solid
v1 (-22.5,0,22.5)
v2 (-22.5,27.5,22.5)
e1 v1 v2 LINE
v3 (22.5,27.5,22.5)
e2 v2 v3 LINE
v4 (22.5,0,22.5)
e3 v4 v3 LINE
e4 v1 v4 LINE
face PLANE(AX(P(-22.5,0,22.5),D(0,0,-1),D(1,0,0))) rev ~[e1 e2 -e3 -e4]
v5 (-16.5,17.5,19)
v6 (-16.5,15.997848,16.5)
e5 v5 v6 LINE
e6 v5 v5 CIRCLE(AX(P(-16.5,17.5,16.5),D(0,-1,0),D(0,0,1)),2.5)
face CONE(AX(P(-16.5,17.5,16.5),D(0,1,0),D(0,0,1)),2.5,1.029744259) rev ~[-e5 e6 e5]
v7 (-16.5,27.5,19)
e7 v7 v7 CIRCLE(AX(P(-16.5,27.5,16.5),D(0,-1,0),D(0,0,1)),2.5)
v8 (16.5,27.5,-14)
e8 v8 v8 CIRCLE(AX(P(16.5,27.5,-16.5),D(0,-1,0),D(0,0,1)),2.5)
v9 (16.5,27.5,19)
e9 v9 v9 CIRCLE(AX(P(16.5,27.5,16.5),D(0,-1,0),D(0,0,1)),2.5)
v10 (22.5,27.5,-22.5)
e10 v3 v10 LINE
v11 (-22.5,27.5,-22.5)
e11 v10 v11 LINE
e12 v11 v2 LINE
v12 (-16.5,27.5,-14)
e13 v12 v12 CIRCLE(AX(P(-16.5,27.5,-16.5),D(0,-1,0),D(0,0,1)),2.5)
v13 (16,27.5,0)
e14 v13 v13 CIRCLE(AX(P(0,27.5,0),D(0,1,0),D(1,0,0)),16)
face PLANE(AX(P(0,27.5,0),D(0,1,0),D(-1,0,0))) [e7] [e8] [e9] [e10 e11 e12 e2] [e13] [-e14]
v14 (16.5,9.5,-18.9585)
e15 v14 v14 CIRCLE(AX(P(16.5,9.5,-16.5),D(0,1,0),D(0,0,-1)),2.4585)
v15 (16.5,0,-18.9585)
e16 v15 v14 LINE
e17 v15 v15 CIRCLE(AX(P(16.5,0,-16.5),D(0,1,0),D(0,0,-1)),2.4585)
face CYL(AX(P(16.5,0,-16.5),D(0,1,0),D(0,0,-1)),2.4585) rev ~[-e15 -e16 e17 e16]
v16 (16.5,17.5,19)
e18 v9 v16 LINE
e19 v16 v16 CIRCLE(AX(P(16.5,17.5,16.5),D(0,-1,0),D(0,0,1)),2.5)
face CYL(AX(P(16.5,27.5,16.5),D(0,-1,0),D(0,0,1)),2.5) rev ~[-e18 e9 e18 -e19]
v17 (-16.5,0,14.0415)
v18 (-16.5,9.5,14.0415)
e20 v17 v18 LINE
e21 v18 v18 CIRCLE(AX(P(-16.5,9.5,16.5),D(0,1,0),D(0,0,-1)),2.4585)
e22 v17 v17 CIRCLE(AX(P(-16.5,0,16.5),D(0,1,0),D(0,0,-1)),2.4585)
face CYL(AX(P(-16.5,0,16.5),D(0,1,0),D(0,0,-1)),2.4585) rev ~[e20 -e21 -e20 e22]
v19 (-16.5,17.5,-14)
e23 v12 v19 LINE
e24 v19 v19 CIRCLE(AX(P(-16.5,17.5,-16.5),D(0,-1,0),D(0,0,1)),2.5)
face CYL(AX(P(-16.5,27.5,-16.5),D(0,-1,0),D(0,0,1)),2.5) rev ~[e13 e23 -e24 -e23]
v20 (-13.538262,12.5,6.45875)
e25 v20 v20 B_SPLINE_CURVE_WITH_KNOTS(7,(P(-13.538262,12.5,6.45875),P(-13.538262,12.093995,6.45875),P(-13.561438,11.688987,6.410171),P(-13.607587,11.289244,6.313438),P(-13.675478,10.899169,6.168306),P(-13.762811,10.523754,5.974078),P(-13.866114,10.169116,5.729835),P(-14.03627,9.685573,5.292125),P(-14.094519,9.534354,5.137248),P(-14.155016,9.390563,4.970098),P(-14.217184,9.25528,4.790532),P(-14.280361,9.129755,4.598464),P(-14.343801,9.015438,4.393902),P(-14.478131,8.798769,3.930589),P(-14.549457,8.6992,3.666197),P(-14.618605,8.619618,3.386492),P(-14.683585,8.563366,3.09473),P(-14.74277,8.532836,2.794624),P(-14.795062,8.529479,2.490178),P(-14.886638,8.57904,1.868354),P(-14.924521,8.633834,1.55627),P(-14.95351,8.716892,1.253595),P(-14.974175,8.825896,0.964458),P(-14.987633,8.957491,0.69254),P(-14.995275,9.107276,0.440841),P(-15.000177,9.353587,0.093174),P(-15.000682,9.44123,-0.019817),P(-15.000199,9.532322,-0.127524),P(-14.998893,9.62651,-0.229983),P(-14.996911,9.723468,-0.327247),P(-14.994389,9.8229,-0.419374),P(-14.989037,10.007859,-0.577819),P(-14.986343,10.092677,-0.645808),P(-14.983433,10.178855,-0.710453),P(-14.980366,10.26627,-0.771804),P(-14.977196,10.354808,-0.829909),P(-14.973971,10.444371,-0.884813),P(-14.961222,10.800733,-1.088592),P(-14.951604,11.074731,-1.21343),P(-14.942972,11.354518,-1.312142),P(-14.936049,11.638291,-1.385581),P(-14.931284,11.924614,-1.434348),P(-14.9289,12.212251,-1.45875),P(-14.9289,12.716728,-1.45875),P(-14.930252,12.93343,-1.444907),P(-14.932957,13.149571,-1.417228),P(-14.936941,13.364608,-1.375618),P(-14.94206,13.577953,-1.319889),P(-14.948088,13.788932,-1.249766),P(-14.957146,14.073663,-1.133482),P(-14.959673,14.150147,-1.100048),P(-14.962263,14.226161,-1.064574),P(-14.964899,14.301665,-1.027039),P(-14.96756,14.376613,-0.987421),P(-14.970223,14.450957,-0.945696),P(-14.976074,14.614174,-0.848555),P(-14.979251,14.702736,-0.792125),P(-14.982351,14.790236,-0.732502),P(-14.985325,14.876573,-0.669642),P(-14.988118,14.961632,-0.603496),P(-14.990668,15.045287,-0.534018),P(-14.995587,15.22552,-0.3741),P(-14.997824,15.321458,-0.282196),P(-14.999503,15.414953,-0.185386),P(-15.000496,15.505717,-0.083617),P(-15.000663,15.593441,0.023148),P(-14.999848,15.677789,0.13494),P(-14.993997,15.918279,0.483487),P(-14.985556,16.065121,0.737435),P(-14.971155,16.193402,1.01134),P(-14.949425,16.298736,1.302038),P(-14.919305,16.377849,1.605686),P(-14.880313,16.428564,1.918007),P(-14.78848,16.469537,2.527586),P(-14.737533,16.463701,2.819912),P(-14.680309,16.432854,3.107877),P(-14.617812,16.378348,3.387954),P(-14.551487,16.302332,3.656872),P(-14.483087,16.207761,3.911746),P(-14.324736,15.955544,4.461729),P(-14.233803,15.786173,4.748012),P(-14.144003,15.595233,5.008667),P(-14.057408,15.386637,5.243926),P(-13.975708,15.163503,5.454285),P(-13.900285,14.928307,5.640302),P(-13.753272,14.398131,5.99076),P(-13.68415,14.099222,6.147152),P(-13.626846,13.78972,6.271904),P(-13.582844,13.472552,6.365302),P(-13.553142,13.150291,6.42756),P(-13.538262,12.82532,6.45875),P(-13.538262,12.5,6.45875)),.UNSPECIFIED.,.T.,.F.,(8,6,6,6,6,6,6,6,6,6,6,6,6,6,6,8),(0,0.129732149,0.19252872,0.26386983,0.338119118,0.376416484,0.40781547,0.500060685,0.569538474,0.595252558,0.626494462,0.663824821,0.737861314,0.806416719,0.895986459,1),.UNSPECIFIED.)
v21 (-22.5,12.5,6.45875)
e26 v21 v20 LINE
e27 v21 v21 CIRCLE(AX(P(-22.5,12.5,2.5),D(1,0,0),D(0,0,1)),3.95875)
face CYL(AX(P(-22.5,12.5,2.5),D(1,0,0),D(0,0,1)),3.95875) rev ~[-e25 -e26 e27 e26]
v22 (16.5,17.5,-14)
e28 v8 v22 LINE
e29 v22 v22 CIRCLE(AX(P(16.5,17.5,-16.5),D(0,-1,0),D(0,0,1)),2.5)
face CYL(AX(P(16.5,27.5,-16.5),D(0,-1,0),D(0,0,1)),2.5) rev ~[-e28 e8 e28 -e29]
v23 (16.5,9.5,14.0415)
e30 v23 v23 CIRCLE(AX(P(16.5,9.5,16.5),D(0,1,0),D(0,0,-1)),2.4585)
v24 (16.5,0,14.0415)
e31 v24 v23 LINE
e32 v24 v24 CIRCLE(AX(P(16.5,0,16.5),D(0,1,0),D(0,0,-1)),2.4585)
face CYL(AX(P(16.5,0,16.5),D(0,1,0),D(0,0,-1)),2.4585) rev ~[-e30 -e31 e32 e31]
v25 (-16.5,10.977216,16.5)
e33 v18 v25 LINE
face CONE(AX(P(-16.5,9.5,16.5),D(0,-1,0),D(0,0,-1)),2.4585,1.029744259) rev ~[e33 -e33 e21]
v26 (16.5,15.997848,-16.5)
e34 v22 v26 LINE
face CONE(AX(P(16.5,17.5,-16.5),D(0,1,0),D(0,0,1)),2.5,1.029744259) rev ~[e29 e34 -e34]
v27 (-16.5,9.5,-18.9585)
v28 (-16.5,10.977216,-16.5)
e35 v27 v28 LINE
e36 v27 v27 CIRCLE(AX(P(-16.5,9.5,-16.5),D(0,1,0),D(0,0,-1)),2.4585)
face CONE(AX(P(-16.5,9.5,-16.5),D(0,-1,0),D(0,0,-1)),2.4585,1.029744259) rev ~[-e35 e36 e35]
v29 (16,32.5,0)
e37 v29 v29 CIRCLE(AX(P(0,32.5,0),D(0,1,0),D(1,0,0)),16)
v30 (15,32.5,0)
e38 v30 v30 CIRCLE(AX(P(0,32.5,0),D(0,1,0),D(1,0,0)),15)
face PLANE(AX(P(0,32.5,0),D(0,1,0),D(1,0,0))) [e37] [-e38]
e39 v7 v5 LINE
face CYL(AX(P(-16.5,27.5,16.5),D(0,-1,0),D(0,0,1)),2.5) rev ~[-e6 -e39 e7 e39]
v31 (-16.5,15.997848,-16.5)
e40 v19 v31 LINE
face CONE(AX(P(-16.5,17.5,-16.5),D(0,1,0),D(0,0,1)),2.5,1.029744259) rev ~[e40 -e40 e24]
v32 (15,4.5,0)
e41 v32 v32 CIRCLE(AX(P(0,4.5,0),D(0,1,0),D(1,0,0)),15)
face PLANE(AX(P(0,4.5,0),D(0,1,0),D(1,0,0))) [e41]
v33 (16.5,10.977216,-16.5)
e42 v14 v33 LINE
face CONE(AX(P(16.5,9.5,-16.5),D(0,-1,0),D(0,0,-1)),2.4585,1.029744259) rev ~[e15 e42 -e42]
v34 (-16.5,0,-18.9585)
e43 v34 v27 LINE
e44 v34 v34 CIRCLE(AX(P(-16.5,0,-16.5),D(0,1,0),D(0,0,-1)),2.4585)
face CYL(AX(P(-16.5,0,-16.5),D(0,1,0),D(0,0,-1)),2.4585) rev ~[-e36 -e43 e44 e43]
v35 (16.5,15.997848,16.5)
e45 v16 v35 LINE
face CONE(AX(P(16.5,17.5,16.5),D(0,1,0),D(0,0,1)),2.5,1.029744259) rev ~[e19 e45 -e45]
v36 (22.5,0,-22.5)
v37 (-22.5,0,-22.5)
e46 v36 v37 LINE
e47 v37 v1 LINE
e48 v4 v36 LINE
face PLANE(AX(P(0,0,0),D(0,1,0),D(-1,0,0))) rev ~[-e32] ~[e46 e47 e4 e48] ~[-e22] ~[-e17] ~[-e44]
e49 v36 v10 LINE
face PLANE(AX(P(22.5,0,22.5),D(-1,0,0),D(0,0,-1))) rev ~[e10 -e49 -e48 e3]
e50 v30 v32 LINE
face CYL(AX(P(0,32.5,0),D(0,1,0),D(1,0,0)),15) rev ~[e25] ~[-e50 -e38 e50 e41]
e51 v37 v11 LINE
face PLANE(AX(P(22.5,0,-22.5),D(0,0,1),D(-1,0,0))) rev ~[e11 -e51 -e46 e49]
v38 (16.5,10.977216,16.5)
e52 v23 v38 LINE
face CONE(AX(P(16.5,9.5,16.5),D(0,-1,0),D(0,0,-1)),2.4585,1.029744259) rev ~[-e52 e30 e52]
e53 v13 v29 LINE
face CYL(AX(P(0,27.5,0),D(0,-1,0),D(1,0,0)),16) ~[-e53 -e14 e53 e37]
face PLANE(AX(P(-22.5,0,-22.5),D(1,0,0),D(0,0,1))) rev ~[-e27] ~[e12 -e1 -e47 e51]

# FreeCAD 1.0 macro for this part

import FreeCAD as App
import Part
import Sketcher

V = App.Vector


def add_polygon(sketch, points):
    """Adds a closed chain of lines whose ends are joined by coincident constraints."""
    first, n = sketch.GeometryCount, len(points)
    for a, b in zip(points, points[1:] + points[:1]):
        sketch.addGeometry(Part.LineSegment(App.Vector(*a, 0), App.Vector(*b, 0)), False)
    for i in range(n):
        sketch.addConstraint(Sketcher.Constraint("Coincident", first + i, 2, first + (i + 1) % n, 1))

doc = App.newDocument("Part")
body = doc.addObject("PartDesign::Body", "Body")

# Sketch on XZ plane
sketch1 = doc.addObject("Sketcher::SketchObject", "Sketch")
body.addObject(sketch1)
sketch1.AttachmentSupport = (doc.XZ_Plane, [""])
sketch1.MapMode = "FlatFace"
add_polygon(sketch1, [(-22.5, -22.5), (-22.5, 22.5), (22.5, 22.5), (22.5, -22.5)])  # lines 0-3
sketch1.addConstraint(Sketcher.Constraint("Vertical", 0))
sketch1.addConstraint(Sketcher.Constraint("Horizontal", 1))
sketch1.addConstraint(Sketcher.Constraint("Vertical", 2))
sketch1.addConstraint(Sketcher.Constraint("Horizontal", 3))
sketch1.addConstraint(Sketcher.Constraint("Symmetric", 0, 2, 2, 2, -1, 1))
sketch1.addConstraint(Sketcher.Constraint("Equal", 3, 0))
sketch1.addConstraint(Sketcher.Constraint("DistanceX", 1, 1, 1, 2, 45.0))
pad1 = doc.addObject("PartDesign::Pad", "Pad")
body.addObject(pad1)
pad1.Profile = sketch1
pad1.Length = 27.5
pad1.Reversed = True

# Sketch on XZ plane
sketch2 = doc.addObject("Sketcher::SketchObject", "Sketch001")
body.addObject(sketch2)
sketch2.AttachmentSupport = (doc.XZ_Plane, [""])
sketch2.MapMode = "FlatFace"
sketch2.AttachmentOffset = App.Placement(V(0, 0, -27.5), App.Rotation())
sketch2.addGeometry(Part.Circle(V(0, 0, 0), V(0, 0, 1), 16), False)
sketch2.addConstraint(Sketcher.Constraint("Coincident", 0, 3, -1, 1))
sketch2.addConstraint(Sketcher.Constraint("Diameter", 0, 32.0))
pad2 = doc.addObject("PartDesign::Pad", "Pad001")
body.addObject(pad2)
pad2.Profile = sketch2
pad2.Length = 5
pad2.Reversed = True

# Sketch on XZ plane
sketch3 = doc.addObject("Sketcher::SketchObject", "Sketch002")
body.addObject(sketch3)
sketch3.AttachmentSupport = (doc.XZ_Plane, [""])
sketch3.MapMode = "FlatFace"
sketch3.addGeometry(Part.Circle(V(16.5, -16.5, 0), V(0, 0, 1), 2.4585), False)
sketch3.addGeometry(Part.Circle(V(-16.5, -16.5, 0), V(0, 0, 1), 2.4585), False)
sketch3.addGeometry(Part.Circle(V(-16.5, 16.5, 0), V(0, 0, 1), 2.4585), False)
sketch3.addGeometry(Part.Circle(V(16.5, 16.5, 0), V(0, 0, 1), 2.4585), False)
sketch3.addConstraint(Sketcher.Constraint("Equal", 0, 1))
sketch3.addConstraint(Sketcher.Constraint("Equal", 1, 2))
sketch3.addConstraint(Sketcher.Constraint("Equal", 2, 3))
sketch3.addConstraint(Sketcher.Constraint("Symmetric", 0, 3, 2, 3, -1, 1))
sketch3.addConstraint(Sketcher.Constraint("Symmetric", 1, 3, 3, 3, -1, 1))
sketch3.addConstraint(Sketcher.Constraint("Symmetric", 0, 3, 1, 3, -2))
sketch3.addConstraint(Sketcher.Constraint("Diameter", 0, 4.917))
sketch3.addConstraint(Sketcher.Constraint("DistanceX", 1, 3, 0, 3, 33.0))
sketch3.addConstraint(Sketcher.Constraint("DistanceY", 1, 3, 2, 3, 33.0))
doc.recompute()
hole = doc.addObject("PartDesign::Hole", "Hole")
body.addObject(hole)
hole.Profile = sketch3
hole.ThreadType = "None"
hole.Diameter = 4.917
hole.DepthType = "Dimension"
hole.Depth = 9.5
hole.DrillPoint = "Angled"
hole.DrillPointAngle = 118

# Sketch on XZ plane
sketch4 = doc.addObject("Sketcher::SketchObject", "Sketch003")
body.addObject(sketch4)
sketch4.AttachmentSupport = (doc.XZ_Plane, [""])
sketch4.MapMode = "FlatFace"
sketch4.AttachmentOffset = App.Placement(V(0, 0, -32.5), App.Rotation())
sketch4.addGeometry(Part.Circle(V(0, 0, 0), V(0, 0, 1), 15), False)
sketch4.addConstraint(Sketcher.Constraint("Coincident", 0, 3, -1, 1))
sketch4.addConstraint(Sketcher.Constraint("Diameter", 0, 30.0))
pocket1 = doc.addObject("PartDesign::Pocket", "Pocket")
body.addObject(pocket1)
pocket1.Profile = sketch4
pocket1.Length = 28
pocket1.Reversed = True

# Sketch on XZ plane
sketch5 = doc.addObject("Sketcher::SketchObject", "Sketch004")
body.addObject(sketch5)
sketch5.AttachmentSupport = (doc.XZ_Plane, [""])
sketch5.MapMode = "FlatFace"
sketch5.AttachmentOffset = App.Placement(V(0, 0, -27.5), App.Rotation())
sketch5.addGeometry(Part.Circle(V(16.5, -16.5, 0), V(0, 0, 1), 2.5), False)
sketch5.addGeometry(Part.Circle(V(16.5, 16.5, 0), V(0, 0, 1), 2.5), False)
sketch5.addGeometry(Part.Circle(V(-16.5, 16.5, 0), V(0, 0, 1), 2.5), False)
sketch5.addGeometry(Part.Circle(V(-16.5, -16.5, 0), V(0, 0, 1), 2.5), False)
sketch5.addConstraint(Sketcher.Constraint("Equal", 0, 1))
sketch5.addConstraint(Sketcher.Constraint("Equal", 1, 2))
sketch5.addConstraint(Sketcher.Constraint("Equal", 2, 3))
sketch5.addConstraint(Sketcher.Constraint("Symmetric", 0, 3, 2, 3, -1, 1))
sketch5.addConstraint(Sketcher.Constraint("Symmetric", 1, 3, 3, 3, -1, 1))
sketch5.addConstraint(Sketcher.Constraint("Symmetric", 1, 3, 2, 3, -2))
sketch5.addConstraint(Sketcher.Constraint("Diameter", 0, 5.0))
sketch5.addConstraint(Sketcher.Constraint("DistanceY", 0, 3, 1, 3, 33.0))
sketch5.addConstraint(Sketcher.Constraint("DistanceX", 2, 3, 1, 3, 33.0))
doc.recompute()
hole2 = doc.addObject("PartDesign::Hole", "Hole001")
body.addObject(hole2)
hole2.Profile = sketch5
hole2.ThreadType = "None"
hole2.Diameter = 5
hole2.DepthType = "Dimension"
hole2.Depth = 10
hole2.DrillPoint = "Angled"
hole2.DrillPointAngle = 118
hole2.Reversed = True

# Sketch on YZ plane
sketch6 = doc.addObject("Sketcher::SketchObject", "Sketch005")
body.addObject(sketch6)
sketch6.AttachmentSupport = (doc.YZ_Plane, [""])
sketch6.MapMode = "FlatFace"
sketch6.AttachmentOffset = App.Placement(V(0, 0, -22.5), App.Rotation())
sketch6.addGeometry(Part.Circle(V(12.5, 2.5, 0), V(0, 0, 1), 3.95875), False)
sketch6.addConstraint(Sketcher.Constraint("Diameter", 0, 7.9175))
sketch6.addConstraint(Sketcher.Constraint("DistanceX", -1, 1, 0, 3, 12.5))
sketch6.addConstraint(Sketcher.Constraint("DistanceY", -1, 1, 0, 3, 2.5))
doc.recompute()
hole3 = doc.addObject("PartDesign::Hole", "Hole002")
body.addObject(hole3)
hole3.Profile = sketch6
hole3.ThreadType = "None"
hole3.Diameter = 7.9175
hole3.DepthType = "Dimension"
hole3.Depth = 27.5375
hole3.DrillPoint = "Angled"
hole3.DrillPointAngle = 118
hole3.Reversed = True

doc.recompute()
